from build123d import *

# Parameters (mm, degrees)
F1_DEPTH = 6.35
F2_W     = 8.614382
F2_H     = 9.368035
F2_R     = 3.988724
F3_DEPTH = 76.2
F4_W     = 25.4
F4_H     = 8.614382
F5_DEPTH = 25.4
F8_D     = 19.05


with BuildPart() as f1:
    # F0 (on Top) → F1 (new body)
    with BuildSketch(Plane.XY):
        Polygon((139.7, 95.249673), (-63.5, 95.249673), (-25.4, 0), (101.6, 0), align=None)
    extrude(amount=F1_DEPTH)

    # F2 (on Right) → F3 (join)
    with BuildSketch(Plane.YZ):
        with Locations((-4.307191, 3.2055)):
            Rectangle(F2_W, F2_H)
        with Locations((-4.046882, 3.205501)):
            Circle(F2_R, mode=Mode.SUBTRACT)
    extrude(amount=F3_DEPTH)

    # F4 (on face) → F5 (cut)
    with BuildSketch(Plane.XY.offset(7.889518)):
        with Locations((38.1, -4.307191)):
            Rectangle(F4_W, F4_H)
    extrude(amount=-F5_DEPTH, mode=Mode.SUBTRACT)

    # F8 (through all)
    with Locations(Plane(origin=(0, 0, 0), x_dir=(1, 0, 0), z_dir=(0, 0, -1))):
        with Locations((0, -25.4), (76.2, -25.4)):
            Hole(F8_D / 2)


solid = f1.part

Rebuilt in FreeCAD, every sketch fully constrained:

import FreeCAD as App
import Part
import Sketcher
Q = App.Units.Quantity


def add_polygon(sketch, points):
    """Adds a closed chain of lines whose ends are joined by coincident constraints."""
    first, n = sketch.GeometryCount, len(points)
    for a, b in zip(points, points[1:] + points[:1]):
        sketch.addGeometry(Part.LineSegment(App.Vector(*a, 0), App.Vector(*b, 0)), False)
    for i in range(n):
        sketch.addConstraint(Sketcher.Constraint("Coincident", first + i, 2, first + (i + 1) % n, 1))

doc = App.newDocument("Part")
body = doc.addObject("PartDesign::Body", "Body")

sketch1 = body.newObject("Sketcher::SketchObject", "Sketch")
sketch1.AttachmentSupport = (doc.getObject("XY_Plane"), [""])
sketch1.MapMode = "FlatFace"
add_polygon(sketch1, [(140, 95), (-64, 95), (-25, 0), (102, 0)])
sketch1.addConstraint([
    Sketcher.Constraint("Horizontal", 0),
    Sketcher.Constraint("Horizontal", 2),
    Sketcher.Constraint("PointOnObject", 1, 2, -1),
    Sketcher.Constraint("Equal", 1, 3),
    Sketcher.Constraint("DistanceX", 0, 2, 0, 1, Q("8 in")),
    Sketcher.Constraint("DistanceX", 2, 1, 2, 2, Q("5 in")),
    Sketcher.Constraint("DistanceX", 1, 2, -1, 1, Q("1 in")),
    Sketcher.Constraint("Distance", 1, 102.587086),
])
pad1 = body.newObject("PartDesign::Pad", "Pad")
pad1.Profile = sketch1
pad1.Length = Q("0.25 in")

sketch2 = body.newObject("Sketcher::SketchObject", "Sketch001")
sketch2.AttachmentSupport = (doc.getObject("YZ_Plane"), [""])
sketch2.MapMode = "FlatFace"
add_polygon(sketch2, [(-8.6, 7.9), (-8.6, -1.5), (0, -1.5), (0, 7.9)])
sketch2.addGeometry(Part.Circle(App.Vector(-4, 3.2, 0), App.Vector(0, 0, 1), 4), False)
sketch2.addConstraint([
    Sketcher.Constraint("Vertical", 0),
    Sketcher.Constraint("Horizontal", 1),
    Sketcher.Constraint("Vertical", 2),
    Sketcher.Constraint("Horizontal", 3),
    Sketcher.Constraint("PointOnObject", 1, 2, -2),
    Sketcher.Constraint("Diameter", 4, 7.977448),
    Sketcher.Constraint("DistanceY", -1, 1, 4, 3, 3.205501),
    Sketcher.Constraint("DistanceX", 0, 2, 4, 3, 4.5675),
    Sketcher.Constraint("DistanceX", 1, 1, 1, 2, 8.614382),
    Sketcher.Constraint("DistanceY", 0, 2, 0, 1, 9.368035),
    Sketcher.Constraint("DistanceY", 0, 2, 4, 3, 4.684018),
])
pad2 = body.newObject("PartDesign::Pad", "Pad001")
pad2.Profile = sketch2
pad2.Length = Q("3 in")

sketch3 = body.newObject("Sketcher::SketchObject", "Sketch002")
sketch3.AttachmentSupport = (doc.getObject("XY_Plane"), [""])
sketch3.MapMode = "FlatFace"
sketch3.AttachmentOffset = App.Placement(App.Vector(0, 0, 7.889518), App.Rotation())
add_polygon(sketch3, [(25, 0), (25, -9), (51, -9), (51, 0)])
sketch3.addConstraint([
    Sketcher.Constraint("Vertical", 0),
    Sketcher.Constraint("Horizontal", 1),
    Sketcher.Constraint("Vertical", 2),
    Sketcher.Constraint("Horizontal", 3),
    Sketcher.Constraint("PointOnObject", 2, 2, -1),
    Sketcher.Constraint("DistanceX", 1, 1, 1, 2, Q("1 in")),
    Sketcher.Constraint("DistanceX", -1, 1, 0, 2, Q("1 in")),
    Sketcher.Constraint("DistanceY", 0, 2, 0, 1, 8.614382),
])
pocket1 = body.newObject("PartDesign::Pocket", "Pocket")
pocket1.Profile = sketch3
pocket1.Length = Q("1 in")

sketch4 = body.newObject("Sketcher::SketchObject", "Sketch003")
sketch4.AttachmentSupport = (doc.getObject("XY_Plane"), [""])
sketch4.MapMode = "FlatFace"
sketch4.addGeometry([
    Part.Circle(App.Vector(0, 25, 0), App.Vector(0, 0, 1), 10),
    Part.Circle(App.Vector(76, 25, 0), App.Vector(0, 0, 1), 10),
], False)
sketch4.addConstraint([
    Sketcher.Constraint("Equal", 0, 1),
    Sketcher.Constraint("PointOnObject", 0, 3, -2),
    Sketcher.Constraint("Horizontal", 0, 3, 1, 3),
    Sketcher.Constraint("Diameter", 0, Q("0.75 in")),
    Sketcher.Constraint("DistanceY", -1, 1, 0, 3, Q("1 in")),
    Sketcher.Constraint("DistanceX", -1, 1, 1, 3, Q("3 in")),
])
doc.recompute()
hole = body.newObject("PartDesign::Hole", "Hole")
hole.Profile = sketch4
hole.ThreadType = "None"
hole.Diameter = Q("0.75 in")
hole.DepthType = "ThroughAll"
hole.Reversed = True

doc.recompute()
